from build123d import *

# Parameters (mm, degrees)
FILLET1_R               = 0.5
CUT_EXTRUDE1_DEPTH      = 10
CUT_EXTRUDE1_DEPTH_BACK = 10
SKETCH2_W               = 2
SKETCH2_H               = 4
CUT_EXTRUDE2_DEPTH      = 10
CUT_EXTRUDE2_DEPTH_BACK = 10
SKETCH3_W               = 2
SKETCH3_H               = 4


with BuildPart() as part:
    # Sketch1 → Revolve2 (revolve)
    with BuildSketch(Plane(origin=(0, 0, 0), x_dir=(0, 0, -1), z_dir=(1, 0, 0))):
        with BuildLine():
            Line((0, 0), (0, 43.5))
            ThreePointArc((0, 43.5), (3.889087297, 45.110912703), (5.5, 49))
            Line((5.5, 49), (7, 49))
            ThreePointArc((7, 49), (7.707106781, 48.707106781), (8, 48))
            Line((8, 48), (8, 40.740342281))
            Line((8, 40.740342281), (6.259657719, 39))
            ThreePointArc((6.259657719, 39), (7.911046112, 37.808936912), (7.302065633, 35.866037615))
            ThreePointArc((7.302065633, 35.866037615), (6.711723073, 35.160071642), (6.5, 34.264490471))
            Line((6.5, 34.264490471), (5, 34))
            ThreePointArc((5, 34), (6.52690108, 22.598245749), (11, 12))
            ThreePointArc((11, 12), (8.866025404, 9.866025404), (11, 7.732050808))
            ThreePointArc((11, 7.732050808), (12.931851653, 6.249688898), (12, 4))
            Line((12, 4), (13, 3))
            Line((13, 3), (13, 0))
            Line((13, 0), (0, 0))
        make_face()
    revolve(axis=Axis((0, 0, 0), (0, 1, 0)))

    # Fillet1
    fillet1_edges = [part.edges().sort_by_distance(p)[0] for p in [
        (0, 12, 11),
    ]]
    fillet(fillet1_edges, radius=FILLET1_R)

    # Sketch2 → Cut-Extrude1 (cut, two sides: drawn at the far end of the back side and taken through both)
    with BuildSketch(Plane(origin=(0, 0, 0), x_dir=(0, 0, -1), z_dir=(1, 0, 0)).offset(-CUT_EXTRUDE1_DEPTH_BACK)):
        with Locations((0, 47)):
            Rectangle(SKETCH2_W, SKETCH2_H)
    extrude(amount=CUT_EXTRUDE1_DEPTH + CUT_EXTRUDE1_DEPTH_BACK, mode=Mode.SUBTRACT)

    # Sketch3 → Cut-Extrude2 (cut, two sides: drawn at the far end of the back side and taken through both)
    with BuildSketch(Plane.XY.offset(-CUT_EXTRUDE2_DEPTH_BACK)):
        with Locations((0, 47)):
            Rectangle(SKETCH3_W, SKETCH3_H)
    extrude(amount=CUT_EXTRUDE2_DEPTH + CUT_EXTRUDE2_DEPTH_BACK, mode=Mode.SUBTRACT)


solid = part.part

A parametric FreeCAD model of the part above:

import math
import FreeCAD as App
import Part
import Sketcher

V = App.Vector
Q = App.Units.Quantity


def edges_at(feature, points):
    """Names of the edges that pass closest to the given points."""
    edges = feature.Shape.Edges
    near = lambda p: min(range(len(edges)), key=lambda i: edges[i].distToShape(Part.Vertex(*p))[0])
    return sorted({f"Edge{near(p) + 1}" for p in points})


def add_polygon(sketch, points):
    """Adds a closed chain of lines whose ends are joined by coincident constraints."""
    first, n = sketch.GeometryCount, len(points)
    for a, b in zip(points, points[1:] + points[:1]):
        sketch.addGeometry(Part.LineSegment(App.Vector(*a, 0), App.Vector(*b, 0)), False)
    for i in range(n):
        sketch.addConstraint(Sketcher.Constraint("Coincident", first + i, 2, first + (i + 1) % n, 1))

doc = App.newDocument("Part")
params = doc.addObject("Spreadsheet::Sheet", "Params")
for row, (alias, value) in enumerate([
    ("sketch1_radius", "2 mm"),
    ("sketch1_radius2", "1 mm"),
    ("sketch1_radius3", "5.5 mm"),
    ("sketch1_width", "3 mm"),
    ("sketch1_height", "13 mm"),
    ("revolution_angle", "360 deg"),
    ("fillet_radius", "0.5 mm"),
    ("sketch2_width", "4 mm"),
    ("sketch2_height", "2 mm"),
    ("sketch3_width", "2 mm"),
    ("sketch3_height", "4 mm"),
], start=1):
    params.set(f"A{row}", alias)
    params.set(f"B{row}", "=" + value)
    params.setAlias(f"B{row}", alias)

body = doc.addObject("PartDesign::Body", "Body")

sketch1 = body.newObject("Sketcher::SketchObject", "Sketch")
sketch1.AttachmentSupport = (doc.getObject("YZ_Plane"), [""])
sketch1.MapMode = "FlatFace"
sketch1.addGeometry(Part.LineSegment(V(43.5, 0, 0), V(0, 0, 0)), False)
sketch1.addGeometry(Part.LineSegment(V(0, 0, 0), V(0, -13, 0)), False)
sketch1.addGeometry(Part.LineSegment(V(0, -13, 0), V(3, -13, 0)), False)
sketch1.addGeometry(Part.LineSegment(V(3, -13, 0), V(4, -12, 0)), False)
sketch1.addGeometry(Part.ArcOfCircle(Part.Circle(V(5.7, -11, 0), V(0, 0, 1), 2), math.radians(-150), math.radians(0)), False)
sketch1.addGeometry(Part.ArcOfCircle(Part.Circle(V(9.9, -11, 0), V(0, 0, 1), 2.1), math.radians(0), math.radians(180)), False)
sketch1.addGeometry(Part.ArcOfCircle(Part.Circle(V(34, -48.3, 0), V(0, 0, 1), 43.3), math.radians(90), math.radians(121)), False)
sketch1.addGeometry(Part.LineSegment(V(34, -5, 0), V(34.3, -6.5, 0)), False)
sketch1.addGeometry(Part.ArcOfCircle(Part.Circle(V(34.3, -8.5, 0), V(0, 0, 1), 2), math.radians(37), math.radians(90)), False)
sketch1.addGeometry(Part.ArcOfCircle(Part.Circle(V(37.3, -6.3, 0), V(0, 0, 1), 1.7), math.radians(-143), math.radians(0)), False)
sketch1.addGeometry(Part.LineSegment(V(39, -6.3, 0), V(40.7, -8, 0)), False)
sketch1.addGeometry(Part.LineSegment(V(40.7, -8, 0), V(48, -8, 0)), False)
sketch1.addGeometry(Part.ArcOfCircle(Part.Circle(V(48, -7, 0), V(0, 0, 1), 1), math.radians(-90), math.radians(0)), False)
sketch1.addGeometry(Part.LineSegment(V(49, -7, 0), V(49, -5.5, 0)), False)
sketch1.addGeometry(Part.ArcOfCircle(Part.Circle(V(49, 0, 0), V(0, 0, 1), 5.5), math.radians(180), math.radians(270)), False)
sketch1.addConstraint(Sketcher.Constraint("Coincident", 0, 2, 1, 1))
sketch1.addConstraint(Sketcher.Constraint("Coincident", 1, 2, 2, 1))
sketch1.addConstraint(Sketcher.Constraint("Coincident", 2, 2, 3, 1))
sketch1.addConstraint(Sketcher.Constraint("Coincident", 3, 2, 4, 1))
sketch1.addConstraint(Sketcher.Constraint("Tangent", 4, 2, 5, 2))
sketch1.addConstraint(Sketcher.Constraint("Coincident", 5, 1, 6, 2))
sketch1.addConstraint(Sketcher.Constraint("Coincident", 6, 1, 7, 1))
sketch1.addConstraint(Sketcher.Constraint("Coincident", 7, 2, 8, 2))
sketch1.addConstraint(Sketcher.Constraint("Tangent", 8, 1, 9, 1))
sketch1.addConstraint(Sketcher.Constraint("Coincident", 9, 2, 10, 1))
sketch1.addConstraint(Sketcher.Constraint("Coincident", 10, 2, 11, 1))
sketch1.addConstraint(Sketcher.Constraint("Tangent", 11, 2, 12, 1))
sketch1.addConstraint(Sketcher.Constraint("Tangent", 12, 2, 13, 1))
sketch1.addConstraint(Sketcher.Constraint("Coincident", 13, 2, 14, 2))
sketch1.addConstraint(Sketcher.Constraint("Coincident", 14, 1, 0, 1))
sketch1.addConstraint(Sketcher.Constraint("Horizontal", 0))
sketch1.addConstraint(Sketcher.Constraint("Vertical", 1))
sketch1.addConstraint(Sketcher.Constraint("Horizontal", 2))
sketch1.addConstraint(Sketcher.Constraint("Horizontal", 11))
sketch1.addConstraint(Sketcher.Constraint("Vertical", 13))
sketch1.addConstraint(Sketcher.Constraint("Coincident", 0, 2, -1, 1))
sketch1.addConstraint(Sketcher.Constraint("Equal", 4, 8))
sketch1.addConstraint(Sketcher.Constraint("PointOnObject", 14, 3, -1))
sketch1.addConstraint(Sketcher.Constraint("Perpendicular", 3, 10))
sketch1.addConstraint(Sketcher.Constraint("Horizontal", 4, 3, 5, 3))
sketch1.addConstraint(Sketcher.Constraint("Horizontal", 4, 2, 5, 1))
sketch1.addConstraint(Sketcher.Constraint("Vertical", 8, 3, 7, 2))
sketch1.addConstraint(Sketcher.Constraint("Vertical", 14, 3, 12, 2))
sketch1.addConstraint(Sketcher.Constraint("Radius", 4, 2.0))
sketch1.addConstraint(Sketcher.Constraint("Radius", 12, 1.0))
sketch1.addConstraint(Sketcher.Constraint("Radius", 14, 5.5))
sketch1.addConstraint(Sketcher.Constraint("DistanceX", 2, 1, 2, 2, 3.0))
sketch1.addConstraint(Sketcher.Constraint("DistanceY", 1, 2, 1, 1, 13.0))
sketch1.addConstraint(Sketcher.Constraint("Angle", 3, Q("45 deg")))
sketch1.addConstraint(Sketcher.Constraint("Angle", 7, Q("-80 deg")))
sketch1.addConstraint(Sketcher.Constraint("DistanceX", 0, 2, 0, 1, 43.5))
sketch1.addConstraint(Sketcher.Constraint("DistanceY", 13, 1, 13, 2, 1.5))
sketch1.addConstraint(Sketcher.Constraint("DistanceY", 4, 3, -1, 1, 11.0))
sketch1.addConstraint(Sketcher.Constraint("DistanceX", -1, 1, 6, 3, 34.0))
sketch1.addConstraint(Sketcher.Constraint("DistanceX", -1, 1, 3, 2, 4.0))
sketch1.addConstraint(Sketcher.Constraint("DistanceX", -1, 1, 5, 1, 12.0))
sketch1.addConstraint(Sketcher.Constraint("DistanceX", -1, 1, 6, 1, 34.0))
sketch1.addConstraint(Sketcher.Constraint("DistanceY", 6, 1, -1, 1, 5.0))
sketch1.addConstraint(Sketcher.Constraint("DistanceX", -1, 1, 9, 2, 39.0))
sketch1.addConstraint(Sketcher.Constraint("DistanceY", 8, 3, -1, 1, 8.5))
sketch1.addConstraint(Sketcher.Constraint("Radius", 9, 1.740342))
sketch1.addConstraint(Sketcher.Constraint("DistanceX", 11, 1, 11, 2, 7.259658))
sketch1.setExpression("Constraints[28]", "Params.sketch1_radius")
sketch1.setExpression("Constraints[29]", "Params.sketch1_radius2")
sketch1.setExpression("Constraints[30]", "Params.sketch1_radius3")
sketch1.setExpression("Constraints[31]", "Params.sketch1_width")
sketch1.setExpression("Constraints[32]", "Params.sketch1_height")
revolution = body.newObject("PartDesign::Revolution", "Revolution")
revolution.Profile = sketch1
revolution.ReferenceAxis = (sketch1, ["H_Axis"])
revolution.setExpression("Angle", "Params.revolution_angle")
doc.recompute()

fillet = body.newObject("PartDesign::Fillet", "Fillet")
fillet.Base = (revolution, edges_at(revolution, [(0, 12, 11)]))
fillet.setExpression("Radius", "Params.fillet_radius")

sketch2 = body.newObject("Sketcher::SketchObject", "Sketch001")
sketch2.AttachmentSupport = (doc.getObject("YZ_Plane"), [""])
sketch2.MapMode = "FlatFace"
add_polygon(sketch2, [(49, 1), (45, 1), (45, -1), (49, -1)])
sketch2.addConstraint(Sketcher.Constraint("Horizontal", 0))
sketch2.addConstraint(Sketcher.Constraint("Vertical", 1))
sketch2.addConstraint(Sketcher.Constraint("Horizontal", 2))
sketch2.addConstraint(Sketcher.Constraint("Vertical", 3))
sketch2.addConstraint(Sketcher.Constraint("DistanceX", 0, 2, 0, 1, 4.0))
sketch2.addConstraint(Sketcher.Constraint("DistanceY", 1, 2, 1, 1, 2.0))
sketch2.addConstraint(Sketcher.Constraint("DistanceX", -1, 1, 0, 2, 45.0))
sketch2.addConstraint(Sketcher.Constraint("DistanceY", -1, 1, 0, 2, 1.0))
sketch2.setExpression("Constraints[8]", "Params.sketch2_width")
sketch2.setExpression("Constraints[9]", "Params.sketch2_height")
pocket1 = body.newObject("PartDesign::Pocket", "Pocket")
pocket1.Profile = sketch2
pocket1.Type = "ThroughAll"
pocket1.Midplane = True

sketch3 = body.newObject("Sketcher::SketchObject", "Sketch002")
sketch3.AttachmentSupport = (doc.getObject("XY_Plane"), [""])
sketch3.MapMode = "FlatFace"
add_polygon(sketch3, [(-1, 49), (-1, 45), (1, 45), (1, 49)])
sketch3.addConstraint(Sketcher.Constraint("Vertical", 0))
sketch3.addConstraint(Sketcher.Constraint("Horizontal", 1))
sketch3.addConstraint(Sketcher.Constraint("Vertical", 2))
sketch3.addConstraint(Sketcher.Constraint("Horizontal", 3))
sketch3.addConstraint(Sketcher.Constraint("DistanceX", 1, 1, 1, 2, 2.0))
sketch3.addConstraint(Sketcher.Constraint("DistanceY", 0, 2, 0, 1, 4.0))
sketch3.addConstraint(Sketcher.Constraint("DistanceX", 0, 2, -1, 1, 1.0))
sketch3.addConstraint(Sketcher.Constraint("DistanceY", -1, 1, 0, 2, 45.0))
sketch3.setExpression("Constraints[8]", "Params.sketch3_width")
sketch3.setExpression("Constraints[9]", "Params.sketch3_height")
pocket2 = body.newObject("PartDesign::Pocket", "Pocket001")
pocket2.Profile = sketch3
pocket2.Type = "ThroughAll"
pocket2.Midplane = True

doc.recompute()
